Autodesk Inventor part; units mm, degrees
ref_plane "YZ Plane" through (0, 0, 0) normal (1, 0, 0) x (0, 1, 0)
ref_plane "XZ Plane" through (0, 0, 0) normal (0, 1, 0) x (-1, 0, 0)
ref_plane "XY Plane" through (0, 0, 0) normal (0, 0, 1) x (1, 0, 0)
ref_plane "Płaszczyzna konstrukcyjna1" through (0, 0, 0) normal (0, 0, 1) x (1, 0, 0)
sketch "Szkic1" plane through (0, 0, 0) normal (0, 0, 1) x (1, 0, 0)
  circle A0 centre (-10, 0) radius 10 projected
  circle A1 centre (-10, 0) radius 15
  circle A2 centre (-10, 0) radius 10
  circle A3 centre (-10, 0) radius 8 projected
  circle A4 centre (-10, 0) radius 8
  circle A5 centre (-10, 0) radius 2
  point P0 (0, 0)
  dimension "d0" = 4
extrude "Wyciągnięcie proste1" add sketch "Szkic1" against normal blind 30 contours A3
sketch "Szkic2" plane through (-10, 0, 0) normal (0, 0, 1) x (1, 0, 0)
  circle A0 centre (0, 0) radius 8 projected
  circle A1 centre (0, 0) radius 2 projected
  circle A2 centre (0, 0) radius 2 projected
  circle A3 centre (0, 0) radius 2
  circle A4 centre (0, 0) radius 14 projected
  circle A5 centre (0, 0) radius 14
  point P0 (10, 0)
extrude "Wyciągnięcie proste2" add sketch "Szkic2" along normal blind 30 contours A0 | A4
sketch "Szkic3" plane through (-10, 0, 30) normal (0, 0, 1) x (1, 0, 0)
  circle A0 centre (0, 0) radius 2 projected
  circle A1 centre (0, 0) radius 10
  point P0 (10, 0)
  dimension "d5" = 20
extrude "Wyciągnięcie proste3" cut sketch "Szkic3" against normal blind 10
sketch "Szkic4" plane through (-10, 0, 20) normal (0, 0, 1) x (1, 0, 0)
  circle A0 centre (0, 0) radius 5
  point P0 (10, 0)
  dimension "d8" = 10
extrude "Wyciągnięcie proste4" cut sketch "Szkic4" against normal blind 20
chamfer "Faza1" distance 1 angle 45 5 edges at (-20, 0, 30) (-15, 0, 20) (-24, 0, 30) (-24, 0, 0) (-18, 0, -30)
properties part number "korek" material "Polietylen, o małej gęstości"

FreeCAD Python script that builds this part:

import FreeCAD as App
import Part
import Sketcher
from FreeCAD import Vector
Q = App.Units.Quantity


def edges_at(feature, points):
    """Names of the edges that pass closest to the given points."""
    edges = feature.Shape.Edges
    near = lambda p: min(range(len(edges)), key=lambda i: edges[i].distToShape(Part.Vertex(*p))[0])
    return sorted({f"Edge{near(p) + 1}" for p in points})

doc = App.newDocument("Part")
body = doc.addObject("PartDesign::Body", "Body")

# Sketch on XY plane
sketch1 = body.newObject("Sketcher::SketchObject", "Sketch")
sketch1.AttachmentSupport = (doc.getObject("XY_Plane"), [""])
sketch1.MapMode = "FlatFace"
sketch1.addGeometry([
    Part.Circle(Vector(-10, 0, 0), Vector(0, 0, 1), 8),
    Part.Circle(Vector(-10, 0, 0), Vector(0, 0, 1), 2),
], False)
sketch1.addConstraint([
    Sketcher.Constraint("Coincident", 1, 3, 0, 3),
    Sketcher.Constraint("PointOnObject", 0, 3, -1),
    Sketcher.Constraint("Diameter", 1, Q("4 mm")),
    Sketcher.Constraint("Diameter", 0, Q("16 mm")),
    Sketcher.Constraint("DistanceX", 0, 3, -1, 1, Q("10 mm")),
])
pad1 = body.newObject("PartDesign::Pad", "Pad")
pad1.Profile = sketch1
pad1.Length = 30
pad1.Reversed = True

# Sketch on XY plane
sketch2 = body.newObject("Sketcher::SketchObject", "Sketch001")
sketch2.AttachmentSupport = (doc.getObject("XY_Plane"), [""])
sketch2.MapMode = "FlatFace"
sketch2.addGeometry([
    Part.Circle(Vector(-10, 0, 0), Vector(0, 0, 1), 14),
    Part.Circle(Vector(-10, 0, 0), Vector(0, 0, 1), 2),
], False)
sketch2.addConstraint([
    Sketcher.Constraint("Coincident", 1, 3, 0, 3),
    Sketcher.Constraint("PointOnObject", 0, 3, -1),
    Sketcher.Constraint("Diameter", 0, Q("28 mm")),
    Sketcher.Constraint("Diameter", 1, Q("4 mm")),
    Sketcher.Constraint("DistanceX", 0, 3, -1, 1, Q("10 mm")),
])
pad2 = body.newObject("PartDesign::Pad", "Pad001")
pad2.Profile = sketch2
pad2.Length = 30

# Sketch on XY plane
sketch3 = body.newObject("Sketcher::SketchObject", "Sketch002")
sketch3.AttachmentSupport = (doc.getObject("XY_Plane"), [""])
sketch3.MapMode = "FlatFace"
sketch3.AttachmentOffset = App.Placement(Vector(0, 0, 30), App.Rotation())
sketch3.addGeometry([
    Part.Circle(Vector(-10, 0, 0), Vector(0, 0, 1), 10),
    Part.Circle(Vector(-10, 0, 0), Vector(0, 0, 1), 2),
], False)
sketch3.addConstraint([
    Sketcher.Constraint("Coincident", 1, 3, 0, 3),
    Sketcher.Constraint("PointOnObject", 0, 3, -1),
    Sketcher.Constraint("Diameter", 0, Q("20 mm")),
    Sketcher.Constraint("Diameter", 1, Q("4 mm")),
    Sketcher.Constraint("DistanceX", 0, 3, -1, 1, Q("10 mm")),
])
pocket1 = body.newObject("PartDesign::Pocket", "Pocket")
pocket1.Profile = sketch3
pocket1.Length = 10

# Sketch on XY plane
sketch4 = body.newObject("Sketcher::SketchObject", "Sketch003")
sketch4.AttachmentSupport = (doc.getObject("XY_Plane"), [""])
sketch4.MapMode = "FlatFace"
sketch4.AttachmentOffset = App.Placement(Vector(0, 0, 20), App.Rotation())
sketch4.addGeometry(Part.Circle(Vector(-10, 0, 0), Vector(0, 0, 1), 5), False)
sketch4.addConstraint([
    Sketcher.Constraint("PointOnObject", 0, 3, -1),
    Sketcher.Constraint("Diameter", 0, Q("10 mm")),
    Sketcher.Constraint("DistanceX", 0, 3, -1, 1, Q("10 mm")),
])
pocket2 = body.newObject("PartDesign::Pocket", "Pocket001")
pocket2.Profile = sketch4
pocket2.Length = 20
doc.recompute()

chamfer = body.newObject("PartDesign::Chamfer", "Chamfer")
chamfer.Base = (pocket2, edges_at(pocket2, [
    (-20, 0, 30),
    (-15, 0, 20),
    (-24, 0, 30),
    (-24, 0, 0),
    (-18, 0, -30),
]))
chamfer.Size = 1

doc.recompute()
